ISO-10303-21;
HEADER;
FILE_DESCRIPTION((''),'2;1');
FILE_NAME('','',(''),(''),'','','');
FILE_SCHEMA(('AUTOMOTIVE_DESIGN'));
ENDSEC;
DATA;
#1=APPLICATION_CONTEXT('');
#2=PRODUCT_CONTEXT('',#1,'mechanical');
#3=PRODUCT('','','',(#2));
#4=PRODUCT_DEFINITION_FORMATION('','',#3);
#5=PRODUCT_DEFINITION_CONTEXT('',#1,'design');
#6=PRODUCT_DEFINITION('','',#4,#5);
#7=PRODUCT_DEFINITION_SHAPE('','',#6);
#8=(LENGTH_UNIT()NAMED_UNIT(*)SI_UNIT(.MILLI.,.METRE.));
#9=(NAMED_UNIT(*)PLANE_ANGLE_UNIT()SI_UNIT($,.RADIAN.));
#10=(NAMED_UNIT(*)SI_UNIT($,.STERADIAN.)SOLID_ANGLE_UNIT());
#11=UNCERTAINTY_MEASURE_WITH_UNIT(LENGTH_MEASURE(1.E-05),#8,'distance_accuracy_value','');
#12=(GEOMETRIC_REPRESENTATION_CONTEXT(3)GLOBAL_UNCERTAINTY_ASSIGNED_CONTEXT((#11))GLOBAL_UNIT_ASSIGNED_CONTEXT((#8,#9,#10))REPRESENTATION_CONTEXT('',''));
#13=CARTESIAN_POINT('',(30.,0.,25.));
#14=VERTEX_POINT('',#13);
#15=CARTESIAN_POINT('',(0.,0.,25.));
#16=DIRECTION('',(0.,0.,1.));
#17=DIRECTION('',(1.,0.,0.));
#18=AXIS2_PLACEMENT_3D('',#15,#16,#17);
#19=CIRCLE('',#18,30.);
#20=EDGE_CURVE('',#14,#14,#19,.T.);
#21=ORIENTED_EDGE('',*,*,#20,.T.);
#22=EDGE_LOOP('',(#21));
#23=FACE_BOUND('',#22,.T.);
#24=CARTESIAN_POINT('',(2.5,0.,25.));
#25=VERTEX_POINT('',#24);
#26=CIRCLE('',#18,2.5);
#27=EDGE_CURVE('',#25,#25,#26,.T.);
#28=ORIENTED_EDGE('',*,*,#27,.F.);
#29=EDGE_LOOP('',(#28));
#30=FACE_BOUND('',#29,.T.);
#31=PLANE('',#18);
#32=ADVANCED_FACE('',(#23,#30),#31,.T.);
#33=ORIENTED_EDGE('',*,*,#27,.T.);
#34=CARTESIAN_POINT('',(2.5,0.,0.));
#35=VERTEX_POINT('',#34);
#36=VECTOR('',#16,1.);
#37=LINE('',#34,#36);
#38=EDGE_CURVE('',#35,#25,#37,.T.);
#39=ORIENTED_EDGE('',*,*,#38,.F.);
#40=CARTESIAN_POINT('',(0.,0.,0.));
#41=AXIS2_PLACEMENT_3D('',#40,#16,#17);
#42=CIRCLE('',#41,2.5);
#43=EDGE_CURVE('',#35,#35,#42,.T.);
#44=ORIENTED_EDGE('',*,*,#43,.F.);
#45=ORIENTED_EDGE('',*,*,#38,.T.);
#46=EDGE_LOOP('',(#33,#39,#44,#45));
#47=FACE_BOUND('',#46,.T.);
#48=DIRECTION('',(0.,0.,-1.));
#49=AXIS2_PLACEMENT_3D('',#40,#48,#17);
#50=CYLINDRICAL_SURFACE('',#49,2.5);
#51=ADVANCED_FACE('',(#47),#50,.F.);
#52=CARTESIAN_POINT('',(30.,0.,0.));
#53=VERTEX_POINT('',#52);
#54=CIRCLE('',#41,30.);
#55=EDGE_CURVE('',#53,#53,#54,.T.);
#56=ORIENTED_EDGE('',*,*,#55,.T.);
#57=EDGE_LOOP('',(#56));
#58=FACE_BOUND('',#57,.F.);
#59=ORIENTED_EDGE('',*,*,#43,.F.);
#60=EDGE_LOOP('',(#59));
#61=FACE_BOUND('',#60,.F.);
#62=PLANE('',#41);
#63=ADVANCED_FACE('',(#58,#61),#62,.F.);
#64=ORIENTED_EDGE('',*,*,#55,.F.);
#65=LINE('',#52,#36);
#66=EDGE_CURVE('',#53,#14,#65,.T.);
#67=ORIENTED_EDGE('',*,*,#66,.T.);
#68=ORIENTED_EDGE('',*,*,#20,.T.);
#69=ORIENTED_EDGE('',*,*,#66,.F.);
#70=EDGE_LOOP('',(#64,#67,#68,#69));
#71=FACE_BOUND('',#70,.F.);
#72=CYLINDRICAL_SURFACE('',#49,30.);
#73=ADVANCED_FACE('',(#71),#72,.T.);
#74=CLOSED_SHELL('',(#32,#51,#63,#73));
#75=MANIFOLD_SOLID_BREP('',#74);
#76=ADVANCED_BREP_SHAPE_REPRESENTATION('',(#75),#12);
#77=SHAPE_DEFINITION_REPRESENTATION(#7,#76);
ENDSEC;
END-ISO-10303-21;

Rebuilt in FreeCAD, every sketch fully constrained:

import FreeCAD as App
import Part
import Sketcher
from FreeCAD import Vector

doc = App.newDocument("Part")
body = doc.addObject("PartDesign::Body", "Body")

sketch1 = doc.addObject("Sketcher::SketchObject", "Sketch")
body.addObject(sketch1)
sketch1.AttachmentSupport = (doc.XY_Plane, [""])
sketch1.MapMode = "FlatFace"
sketch1.addGeometry([
    Part.Circle(Vector(0, 0, 0), Vector(0, 0, 1), 30),
    Part.Circle(Vector(0, 0, 0), Vector(0, 0, 1), 2.5),
], False)
sketch1.addConstraint([
    Sketcher.Constraint("Coincident", 0, 3, -1, 1),
    Sketcher.Constraint("Coincident", 1, 3, -1, 1),
    Sketcher.Constraint("Diameter", 0, 60.0),
    Sketcher.Constraint("Diameter", 1, 5.0),
])
pad1 = doc.addObject("PartDesign::Pad", "Pad")
body.addObject(pad1)
pad1.Profile = sketch1
pad1.Length = 25

doc.recompute()
